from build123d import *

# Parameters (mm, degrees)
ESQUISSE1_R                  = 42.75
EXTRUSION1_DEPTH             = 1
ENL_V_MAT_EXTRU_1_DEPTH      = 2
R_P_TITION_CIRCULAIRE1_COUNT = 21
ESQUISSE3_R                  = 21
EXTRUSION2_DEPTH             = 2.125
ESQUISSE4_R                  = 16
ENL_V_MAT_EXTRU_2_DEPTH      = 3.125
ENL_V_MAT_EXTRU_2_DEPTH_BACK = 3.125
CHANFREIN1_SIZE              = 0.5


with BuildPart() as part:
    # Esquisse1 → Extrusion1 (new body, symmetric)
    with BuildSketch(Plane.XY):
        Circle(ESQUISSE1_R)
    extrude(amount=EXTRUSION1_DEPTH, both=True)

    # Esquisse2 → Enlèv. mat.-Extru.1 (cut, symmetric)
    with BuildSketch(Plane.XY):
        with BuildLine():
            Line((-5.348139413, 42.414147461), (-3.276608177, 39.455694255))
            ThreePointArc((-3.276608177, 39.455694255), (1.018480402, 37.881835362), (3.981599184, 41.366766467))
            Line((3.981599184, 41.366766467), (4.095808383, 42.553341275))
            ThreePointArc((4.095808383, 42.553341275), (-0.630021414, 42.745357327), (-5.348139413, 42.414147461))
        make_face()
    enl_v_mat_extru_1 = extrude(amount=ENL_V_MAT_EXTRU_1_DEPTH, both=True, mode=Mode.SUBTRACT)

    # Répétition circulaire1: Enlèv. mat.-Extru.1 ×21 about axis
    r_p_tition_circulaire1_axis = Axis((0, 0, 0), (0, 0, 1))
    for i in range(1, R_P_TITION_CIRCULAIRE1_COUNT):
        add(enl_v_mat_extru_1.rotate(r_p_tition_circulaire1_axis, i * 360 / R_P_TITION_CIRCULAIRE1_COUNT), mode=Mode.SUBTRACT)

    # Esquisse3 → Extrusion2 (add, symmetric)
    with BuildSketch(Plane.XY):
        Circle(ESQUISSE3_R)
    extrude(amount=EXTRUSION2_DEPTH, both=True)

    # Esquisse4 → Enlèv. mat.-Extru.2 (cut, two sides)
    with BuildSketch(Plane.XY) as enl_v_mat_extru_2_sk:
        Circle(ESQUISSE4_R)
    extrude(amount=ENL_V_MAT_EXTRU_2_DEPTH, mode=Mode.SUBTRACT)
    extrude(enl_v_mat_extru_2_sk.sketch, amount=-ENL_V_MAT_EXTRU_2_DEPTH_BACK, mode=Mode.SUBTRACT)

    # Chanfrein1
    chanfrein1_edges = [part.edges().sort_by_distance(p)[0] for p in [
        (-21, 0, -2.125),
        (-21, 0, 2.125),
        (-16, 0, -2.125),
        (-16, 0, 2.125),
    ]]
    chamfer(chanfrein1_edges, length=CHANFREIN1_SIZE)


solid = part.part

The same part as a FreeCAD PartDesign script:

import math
import FreeCAD as App
import Part
import Sketcher
Q = App.Units.Quantity


def edges_at(feature, points):
    """Names of the edges that pass closest to the given points."""
    edges = feature.Shape.Edges
    near = lambda p: min(range(len(edges)), key=lambda i: edges[i].distToShape(Part.Vertex(*p))[0])
    return sorted({f"Edge{near(p) + 1}" for p in points})

doc = App.newDocument("Part")
body = doc.addObject("PartDesign::Body", "Body")

# Sketch on XY plane
sketch1 = doc.addObject("Sketcher::SketchObject", "Sketch")
body.addObject(sketch1)
sketch1.AttachmentSupport = (doc.XY_Plane, [""])
sketch1.MapMode = "FlatFace"
sketch1.addGeometry(Part.Circle(App.Vector(0, 0, 0), App.Vector(0, 0, 1), 43), False)
sketch1.addConstraint([
    Sketcher.Constraint("Coincident", 0, 3, -1, 1),
    Sketcher.Constraint("Diameter", 0, 85.5),
])
pad1 = doc.addObject("PartDesign::Pad", "Pad")
body.addObject(pad1)
pad1.Profile = sketch1
pad1.Length = 2
pad1.Midplane = True

# Sketch on XY plane
sketch2 = doc.addObject("Sketcher::SketchObject", "Sketch001")
body.addObject(sketch2)
sketch2.AttachmentSupport = (doc.XY_Plane, [""])
sketch2.MapMode = "FlatFace"
sketch2.addGeometry([
    Part.LineSegment(App.Vector(-5.3, 42.4, 0), App.Vector(-3.3, 39.5, 0)),
    Part.ArcOfCircle(Part.Circle(App.Vector(0, 41.8, 0), App.Vector(0, 0, 1), 4), math.radians(-145), math.radians(-5)),
    Part.LineSegment(App.Vector(4, 41.4, 0), App.Vector(4.1, 42.6, 0)),
    Part.ArcOfCircle(Part.Circle(App.Vector(0, 0, 0), App.Vector(0, 0, 1), 42.8), math.radians(84.5), math.radians(97.19)),
], False)
sketch2.addConstraint([
    Sketcher.Constraint("Tangent", 0, 2, 1, 1),
    Sketcher.Constraint("Tangent", 1, 2, 2, 1),
    Sketcher.Constraint("Coincident", 2, 2, 3, 1),
    Sketcher.Constraint("Coincident", 3, 2, 0, 1),
    Sketcher.Constraint("Coincident", 3, 3, -1, 1),
    Sketcher.Constraint("PointOnObject", 1, 3, -2),
    Sketcher.Constraint("Radius", 1, 4.0),
    Sketcher.Constraint("Angle", 0, Q("-55 deg")),
    Sketcher.Constraint("Radius", 3, 42.75),
    Sketcher.Constraint("DistanceY", -1, 1, 1, 3, 41.75),
    Sketcher.Constraint("DistanceX", -1, 1, 1, 2, 3.981599),
])
pocket1 = doc.addObject("PartDesign::Pocket", "Pocket")
body.addObject(pocket1)
pocket1.Profile = sketch2
pocket1.Length = 4
pocket1.Midplane = True
doc.recompute()

polarpattern = doc.addObject("PartDesign::PolarPattern", "PolarPattern")
body.addObject(polarpattern)
polarpattern.Originals = [pocket1]
polarpattern.Axis = (doc.Z_Axis, [""])
polarpattern.Angle = 360
polarpattern.Occurrences = 21
body.Tip = polarpattern

# Sketch on XY plane
sketch3 = doc.addObject("Sketcher::SketchObject", "Sketch002")
body.addObject(sketch3)
sketch3.AttachmentSupport = (doc.XY_Plane, [""])
sketch3.MapMode = "FlatFace"
sketch3.addGeometry(Part.Circle(App.Vector(0, 0, 0), App.Vector(0, 0, 1), 21), False)
sketch3.addConstraint([
    Sketcher.Constraint("Coincident", 0, 3, -1, 1),
    Sketcher.Constraint("Diameter", 0, 42.0),
])
pad2 = doc.addObject("PartDesign::Pad", "Pad001")
body.addObject(pad2)
pad2.Profile = sketch3
pad2.Length = 4.25
pad2.Midplane = True

# Sketch on XY plane
sketch4 = doc.addObject("Sketcher::SketchObject", "Sketch003")
body.addObject(sketch4)
sketch4.AttachmentSupport = (doc.XY_Plane, [""])
sketch4.MapMode = "FlatFace"
sketch4.addGeometry(Part.Circle(App.Vector(0, 0, 0), App.Vector(0, 0, 1), 16), False)
sketch4.addConstraint([
    Sketcher.Constraint("Coincident", 0, 3, -1, 1),
    Sketcher.Constraint("Diameter", 0, 32.0),
])
pocket2 = doc.addObject("PartDesign::Pocket", "Pocket001")
body.addObject(pocket2)
pocket2.Profile = sketch4
pocket2.Type = "ThroughAll"
pocket2.Midplane = True
doc.recompute()

chamfer = doc.addObject("PartDesign::Chamfer", "Chamfer")
body.addObject(chamfer)
chamfer.Base = (pocket2, edges_at(pocket2, [
    (-21, 0, -2.125),
    (-21, 0, 2.125),
    (-16, 0, -2.125),
    (-16, 0, 2.125),
]))
chamfer.Size = 0.5

doc.recompute()
